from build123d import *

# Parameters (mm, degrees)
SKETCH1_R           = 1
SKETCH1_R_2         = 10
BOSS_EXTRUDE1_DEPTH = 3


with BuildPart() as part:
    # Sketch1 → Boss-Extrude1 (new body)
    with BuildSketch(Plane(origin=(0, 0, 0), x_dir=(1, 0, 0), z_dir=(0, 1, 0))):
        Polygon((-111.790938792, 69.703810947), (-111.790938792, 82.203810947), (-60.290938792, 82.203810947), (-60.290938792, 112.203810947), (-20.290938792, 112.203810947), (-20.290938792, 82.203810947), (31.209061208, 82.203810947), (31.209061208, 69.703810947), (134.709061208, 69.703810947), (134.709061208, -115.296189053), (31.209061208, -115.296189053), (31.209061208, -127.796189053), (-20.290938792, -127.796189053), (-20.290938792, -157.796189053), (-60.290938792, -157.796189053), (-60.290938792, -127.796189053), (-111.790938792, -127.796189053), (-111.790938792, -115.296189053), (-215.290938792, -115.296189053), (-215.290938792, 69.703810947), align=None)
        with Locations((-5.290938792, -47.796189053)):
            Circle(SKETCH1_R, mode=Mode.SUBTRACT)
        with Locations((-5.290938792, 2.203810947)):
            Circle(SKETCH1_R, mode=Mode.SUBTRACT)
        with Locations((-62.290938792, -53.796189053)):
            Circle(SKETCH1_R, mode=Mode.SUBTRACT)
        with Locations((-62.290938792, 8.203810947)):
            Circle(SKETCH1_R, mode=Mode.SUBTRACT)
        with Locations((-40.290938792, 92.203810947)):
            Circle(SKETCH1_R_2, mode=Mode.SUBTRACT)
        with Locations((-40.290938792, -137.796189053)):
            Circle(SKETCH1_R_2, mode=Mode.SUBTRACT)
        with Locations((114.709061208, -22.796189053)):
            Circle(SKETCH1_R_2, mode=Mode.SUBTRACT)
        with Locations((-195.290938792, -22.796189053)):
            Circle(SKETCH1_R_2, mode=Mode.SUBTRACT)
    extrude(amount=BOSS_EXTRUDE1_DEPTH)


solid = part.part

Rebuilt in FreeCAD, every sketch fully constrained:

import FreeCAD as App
import Part
import Sketcher
from FreeCAD import Vector


def add_polygon(sketch, points):
    """Adds a closed chain of lines whose ends are joined by coincident constraints."""
    first, n = sketch.GeometryCount, len(points)
    for a, b in zip(points, points[1:] + points[:1]):
        sketch.addGeometry(Part.LineSegment(App.Vector(*a, 0), App.Vector(*b, 0)), False)
    for i in range(n):
        sketch.addConstraint(Sketcher.Constraint("Coincident", first + i, 2, first + (i + 1) % n, 1))

doc = App.newDocument("Part")
params = doc.addObject("Spreadsheet::Sheet", "Params")
for row, (alias, value) in enumerate([
    ("sketch1_diameter", "2 mm"),
    ("sketch1_diameter2", "20 mm"),
    ("sketch1_width", "40 mm"),
    ("sketch1_height", "185 mm"),
    ("sketch1_height2", "30 mm"),
    ("pad1_length", "3 mm"),
], start=1):
    params.set(f"A{row}", alias)
    params.set(f"B{row}", "=" + value)
    params.setAlias(f"B{row}", alias)

body = doc.addObject("PartDesign::Body", "Body")

# Sketch on XZ plane
sketch1 = body.newObject("Sketcher::SketchObject", "Sketch")
sketch1.AttachmentSupport = (doc.getObject("XZ_Plane"), [""])
sketch1.MapMode = "FlatFace"
add_polygon(sketch1, [(-111.790939, -82.203811), (-111.790939, -69.703811), (-215.290939, -69.703811), (-215.290939, 115.296189), (-111.790939, 115.296189), (-111.790939, 127.796189), (-60.290939, 127.796189), (-60.290939, 157.796189), (-20.290939, 157.796189), (-20.290939, 127.796189), (31.209061, 127.796189), (31.209061, 115.296189), (134.709061, 115.296189), (134.709061, -69.703811), (31.209061, -69.703811), (31.209061, -82.203811), (-20.290939, -82.203811), (-20.290939, -112.203811), (-60.290939, -112.203811), (-60.290939, -82.203811)])  # lines 0-19
sketch1.addGeometry(Part.Circle(Vector(-5.290939, 47.796189, 0), Vector(0, 0, 1), 1), False)  # 20
sketch1.addGeometry(Part.Circle(Vector(-40.290939, 137.796189, 0), Vector(0, 0, 1), 10), False)  # 21
sketch1.addGeometry(Part.Circle(Vector(-62.290939, 53.796189, 0), Vector(0, 0, 1), 1), False)  # 22
sketch1.addGeometry(Part.Circle(Vector(114.709061, 22.796189, 0), Vector(0, 0, 1), 10), False)  # 23
sketch1.addGeometry(Part.Circle(Vector(-5.290939, -2.203811, 0), Vector(0, 0, 1), 1), False)  # 24
sketch1.addGeometry(Part.Circle(Vector(-62.290939, -8.203811, 0), Vector(0, 0, 1), 1), False)  # 25
sketch1.addGeometry(Part.Circle(Vector(-195.290939, 22.796189, 0), Vector(0, 0, 1), 10), False)  # 26
sketch1.addGeometry(Part.Circle(Vector(-40.290939, -92.203811, 0), Vector(0, 0, 1), 10), False)  # 27
sketch1.addConstraint([
    Sketcher.Constraint("Vertical", 0),
    Sketcher.Constraint("Horizontal", 1),
    Sketcher.Constraint("Vertical", 2),
    Sketcher.Constraint("Horizontal", 3),
    Sketcher.Constraint("Vertical", 4),
    Sketcher.Constraint("Horizontal", 5),
    Sketcher.Constraint("Vertical", 6),
    Sketcher.Constraint("Horizontal", 7),
    Sketcher.Constraint("Vertical", 8),
    Sketcher.Constraint("Horizontal", 9),
    Sketcher.Constraint("Vertical", 10),
    Sketcher.Constraint("Horizontal", 11),
    Sketcher.Constraint("Vertical", 12),
    Sketcher.Constraint("Horizontal", 13),
    Sketcher.Constraint("Vertical", 14),
    Sketcher.Constraint("Horizontal", 15),
    Sketcher.Constraint("Vertical", 16),
    Sketcher.Constraint("Horizontal", 17),
    Sketcher.Constraint("Vertical", 18),
    Sketcher.Constraint("Horizontal", 19),
    Sketcher.Constraint("Equal", 20, 22),
    Sketcher.Constraint("Equal", 21, 23),
    Sketcher.Constraint("Equal", 22, 24),
    Sketcher.Constraint("Equal", 24, 25),
    Sketcher.Constraint("Equal", 23, 26),
    Sketcher.Constraint("Equal", 26, 27),
    Sketcher.Constraint("Horizontal", 23, 3, 26, 3),
    Sketcher.Constraint("Horizontal", 5, 2, 8, 2),
    Sketcher.Constraint("Horizontal", 3, 2, 10, 2),
    Sketcher.Constraint("Horizontal", 1, 2, 12, 2),
    Sketcher.Constraint("Horizontal", 15, 2, 18, 2),
    Sketcher.Constraint("Vertical", 20, 3, 24, 3),
    Sketcher.Constraint("Vertical", 22, 3, 25, 3),
    Sketcher.Constraint("Vertical", 21, 3, 27, 3),
    Sketcher.Constraint("Vertical", 0, 2, 3, 2),
    Sketcher.Constraint("Vertical", 10, 2, 13, 2),
    Sketcher.Constraint("Vertical", 8, 2, 15, 2),
    Sketcher.Constraint("Vertical", 6, 2, 17, 2),
    Sketcher.Constraint("Equal", 5, 9),
    Sketcher.Constraint("Equal", 3, 11),
    Sketcher.Constraint("Equal", 0, 4),
    Sketcher.Constraint("Equal", 8, 16),
    Sketcher.Constraint("Diameter", 20, 2.0),
    Sketcher.Constraint("Diameter", 21, 20.0),
    Sketcher.Constraint("DistanceX", 7, 1, 7, 2, 40.0),
    Sketcher.Constraint("DistanceY", 2, 1, 2, 2, 185.0),
    Sketcher.Constraint("DistanceY", 6, 1, 6, 2, 30.0),
    Sketcher.Constraint("DistanceX", 1, 2, 1, 1, 103.5),
    Sketcher.Constraint("DistanceX", 5, 1, 5, 2, 51.5),
    Sketcher.Constraint("DistanceY", 0, 1, 0, 2, 12.5),
    Sketcher.Constraint("DistanceX", 21, 3, 20, 3, 35.0),
    Sketcher.Constraint("DistanceY", 20, 3, 21, 3, 90.0),
    Sketcher.Constraint("DistanceX", 22, 3, 20, 3, 57.0),
    Sketcher.Constraint("DistanceY", 20, 3, 22, 3, 6.0),
    Sketcher.Constraint("DistanceX", 20, 3, 23, 3, 120.0),
    Sketcher.Constraint("DistanceY", 23, 3, 20, 3, 25.0),
    Sketcher.Constraint("DistanceY", 24, 3, 20, 3, 50.0),
    Sketcher.Constraint("DistanceY", 25, 3, 24, 3, 6.0),
    Sketcher.Constraint("DistanceX", 26, 3, 22, 3, 133.0),
    Sketcher.Constraint("DistanceY", 27, 3, 25, 3, 84.0),
    Sketcher.Constraint("DistanceX", 1, 2, 26, 3, 20.0),
    Sketcher.Constraint("DistanceY", 4, 2, 21, 3, 10.0),
    Sketcher.Constraint("DistanceX", 20, 3, -1, 1, 5.290939),
    Sketcher.Constraint("DistanceY", -1, 1, 20, 3, 47.796189),
])
sketch1.setExpression("Constraints[62]", "Params.sketch1_diameter")
sketch1.setExpression("Constraints[63]", "Params.sketch1_diameter2")
sketch1.setExpression("Constraints[64]", "Params.sketch1_width")
sketch1.setExpression("Constraints[65]", "Params.sketch1_height")
sketch1.setExpression("Constraints[66]", "Params.sketch1_height2")
pad1 = body.newObject("PartDesign::Pad", "Pad")
pad1.Profile = sketch1
pad1.setExpression("Length", "Params.pad1_length")
pad1.Reversed = True

doc.recompute()
